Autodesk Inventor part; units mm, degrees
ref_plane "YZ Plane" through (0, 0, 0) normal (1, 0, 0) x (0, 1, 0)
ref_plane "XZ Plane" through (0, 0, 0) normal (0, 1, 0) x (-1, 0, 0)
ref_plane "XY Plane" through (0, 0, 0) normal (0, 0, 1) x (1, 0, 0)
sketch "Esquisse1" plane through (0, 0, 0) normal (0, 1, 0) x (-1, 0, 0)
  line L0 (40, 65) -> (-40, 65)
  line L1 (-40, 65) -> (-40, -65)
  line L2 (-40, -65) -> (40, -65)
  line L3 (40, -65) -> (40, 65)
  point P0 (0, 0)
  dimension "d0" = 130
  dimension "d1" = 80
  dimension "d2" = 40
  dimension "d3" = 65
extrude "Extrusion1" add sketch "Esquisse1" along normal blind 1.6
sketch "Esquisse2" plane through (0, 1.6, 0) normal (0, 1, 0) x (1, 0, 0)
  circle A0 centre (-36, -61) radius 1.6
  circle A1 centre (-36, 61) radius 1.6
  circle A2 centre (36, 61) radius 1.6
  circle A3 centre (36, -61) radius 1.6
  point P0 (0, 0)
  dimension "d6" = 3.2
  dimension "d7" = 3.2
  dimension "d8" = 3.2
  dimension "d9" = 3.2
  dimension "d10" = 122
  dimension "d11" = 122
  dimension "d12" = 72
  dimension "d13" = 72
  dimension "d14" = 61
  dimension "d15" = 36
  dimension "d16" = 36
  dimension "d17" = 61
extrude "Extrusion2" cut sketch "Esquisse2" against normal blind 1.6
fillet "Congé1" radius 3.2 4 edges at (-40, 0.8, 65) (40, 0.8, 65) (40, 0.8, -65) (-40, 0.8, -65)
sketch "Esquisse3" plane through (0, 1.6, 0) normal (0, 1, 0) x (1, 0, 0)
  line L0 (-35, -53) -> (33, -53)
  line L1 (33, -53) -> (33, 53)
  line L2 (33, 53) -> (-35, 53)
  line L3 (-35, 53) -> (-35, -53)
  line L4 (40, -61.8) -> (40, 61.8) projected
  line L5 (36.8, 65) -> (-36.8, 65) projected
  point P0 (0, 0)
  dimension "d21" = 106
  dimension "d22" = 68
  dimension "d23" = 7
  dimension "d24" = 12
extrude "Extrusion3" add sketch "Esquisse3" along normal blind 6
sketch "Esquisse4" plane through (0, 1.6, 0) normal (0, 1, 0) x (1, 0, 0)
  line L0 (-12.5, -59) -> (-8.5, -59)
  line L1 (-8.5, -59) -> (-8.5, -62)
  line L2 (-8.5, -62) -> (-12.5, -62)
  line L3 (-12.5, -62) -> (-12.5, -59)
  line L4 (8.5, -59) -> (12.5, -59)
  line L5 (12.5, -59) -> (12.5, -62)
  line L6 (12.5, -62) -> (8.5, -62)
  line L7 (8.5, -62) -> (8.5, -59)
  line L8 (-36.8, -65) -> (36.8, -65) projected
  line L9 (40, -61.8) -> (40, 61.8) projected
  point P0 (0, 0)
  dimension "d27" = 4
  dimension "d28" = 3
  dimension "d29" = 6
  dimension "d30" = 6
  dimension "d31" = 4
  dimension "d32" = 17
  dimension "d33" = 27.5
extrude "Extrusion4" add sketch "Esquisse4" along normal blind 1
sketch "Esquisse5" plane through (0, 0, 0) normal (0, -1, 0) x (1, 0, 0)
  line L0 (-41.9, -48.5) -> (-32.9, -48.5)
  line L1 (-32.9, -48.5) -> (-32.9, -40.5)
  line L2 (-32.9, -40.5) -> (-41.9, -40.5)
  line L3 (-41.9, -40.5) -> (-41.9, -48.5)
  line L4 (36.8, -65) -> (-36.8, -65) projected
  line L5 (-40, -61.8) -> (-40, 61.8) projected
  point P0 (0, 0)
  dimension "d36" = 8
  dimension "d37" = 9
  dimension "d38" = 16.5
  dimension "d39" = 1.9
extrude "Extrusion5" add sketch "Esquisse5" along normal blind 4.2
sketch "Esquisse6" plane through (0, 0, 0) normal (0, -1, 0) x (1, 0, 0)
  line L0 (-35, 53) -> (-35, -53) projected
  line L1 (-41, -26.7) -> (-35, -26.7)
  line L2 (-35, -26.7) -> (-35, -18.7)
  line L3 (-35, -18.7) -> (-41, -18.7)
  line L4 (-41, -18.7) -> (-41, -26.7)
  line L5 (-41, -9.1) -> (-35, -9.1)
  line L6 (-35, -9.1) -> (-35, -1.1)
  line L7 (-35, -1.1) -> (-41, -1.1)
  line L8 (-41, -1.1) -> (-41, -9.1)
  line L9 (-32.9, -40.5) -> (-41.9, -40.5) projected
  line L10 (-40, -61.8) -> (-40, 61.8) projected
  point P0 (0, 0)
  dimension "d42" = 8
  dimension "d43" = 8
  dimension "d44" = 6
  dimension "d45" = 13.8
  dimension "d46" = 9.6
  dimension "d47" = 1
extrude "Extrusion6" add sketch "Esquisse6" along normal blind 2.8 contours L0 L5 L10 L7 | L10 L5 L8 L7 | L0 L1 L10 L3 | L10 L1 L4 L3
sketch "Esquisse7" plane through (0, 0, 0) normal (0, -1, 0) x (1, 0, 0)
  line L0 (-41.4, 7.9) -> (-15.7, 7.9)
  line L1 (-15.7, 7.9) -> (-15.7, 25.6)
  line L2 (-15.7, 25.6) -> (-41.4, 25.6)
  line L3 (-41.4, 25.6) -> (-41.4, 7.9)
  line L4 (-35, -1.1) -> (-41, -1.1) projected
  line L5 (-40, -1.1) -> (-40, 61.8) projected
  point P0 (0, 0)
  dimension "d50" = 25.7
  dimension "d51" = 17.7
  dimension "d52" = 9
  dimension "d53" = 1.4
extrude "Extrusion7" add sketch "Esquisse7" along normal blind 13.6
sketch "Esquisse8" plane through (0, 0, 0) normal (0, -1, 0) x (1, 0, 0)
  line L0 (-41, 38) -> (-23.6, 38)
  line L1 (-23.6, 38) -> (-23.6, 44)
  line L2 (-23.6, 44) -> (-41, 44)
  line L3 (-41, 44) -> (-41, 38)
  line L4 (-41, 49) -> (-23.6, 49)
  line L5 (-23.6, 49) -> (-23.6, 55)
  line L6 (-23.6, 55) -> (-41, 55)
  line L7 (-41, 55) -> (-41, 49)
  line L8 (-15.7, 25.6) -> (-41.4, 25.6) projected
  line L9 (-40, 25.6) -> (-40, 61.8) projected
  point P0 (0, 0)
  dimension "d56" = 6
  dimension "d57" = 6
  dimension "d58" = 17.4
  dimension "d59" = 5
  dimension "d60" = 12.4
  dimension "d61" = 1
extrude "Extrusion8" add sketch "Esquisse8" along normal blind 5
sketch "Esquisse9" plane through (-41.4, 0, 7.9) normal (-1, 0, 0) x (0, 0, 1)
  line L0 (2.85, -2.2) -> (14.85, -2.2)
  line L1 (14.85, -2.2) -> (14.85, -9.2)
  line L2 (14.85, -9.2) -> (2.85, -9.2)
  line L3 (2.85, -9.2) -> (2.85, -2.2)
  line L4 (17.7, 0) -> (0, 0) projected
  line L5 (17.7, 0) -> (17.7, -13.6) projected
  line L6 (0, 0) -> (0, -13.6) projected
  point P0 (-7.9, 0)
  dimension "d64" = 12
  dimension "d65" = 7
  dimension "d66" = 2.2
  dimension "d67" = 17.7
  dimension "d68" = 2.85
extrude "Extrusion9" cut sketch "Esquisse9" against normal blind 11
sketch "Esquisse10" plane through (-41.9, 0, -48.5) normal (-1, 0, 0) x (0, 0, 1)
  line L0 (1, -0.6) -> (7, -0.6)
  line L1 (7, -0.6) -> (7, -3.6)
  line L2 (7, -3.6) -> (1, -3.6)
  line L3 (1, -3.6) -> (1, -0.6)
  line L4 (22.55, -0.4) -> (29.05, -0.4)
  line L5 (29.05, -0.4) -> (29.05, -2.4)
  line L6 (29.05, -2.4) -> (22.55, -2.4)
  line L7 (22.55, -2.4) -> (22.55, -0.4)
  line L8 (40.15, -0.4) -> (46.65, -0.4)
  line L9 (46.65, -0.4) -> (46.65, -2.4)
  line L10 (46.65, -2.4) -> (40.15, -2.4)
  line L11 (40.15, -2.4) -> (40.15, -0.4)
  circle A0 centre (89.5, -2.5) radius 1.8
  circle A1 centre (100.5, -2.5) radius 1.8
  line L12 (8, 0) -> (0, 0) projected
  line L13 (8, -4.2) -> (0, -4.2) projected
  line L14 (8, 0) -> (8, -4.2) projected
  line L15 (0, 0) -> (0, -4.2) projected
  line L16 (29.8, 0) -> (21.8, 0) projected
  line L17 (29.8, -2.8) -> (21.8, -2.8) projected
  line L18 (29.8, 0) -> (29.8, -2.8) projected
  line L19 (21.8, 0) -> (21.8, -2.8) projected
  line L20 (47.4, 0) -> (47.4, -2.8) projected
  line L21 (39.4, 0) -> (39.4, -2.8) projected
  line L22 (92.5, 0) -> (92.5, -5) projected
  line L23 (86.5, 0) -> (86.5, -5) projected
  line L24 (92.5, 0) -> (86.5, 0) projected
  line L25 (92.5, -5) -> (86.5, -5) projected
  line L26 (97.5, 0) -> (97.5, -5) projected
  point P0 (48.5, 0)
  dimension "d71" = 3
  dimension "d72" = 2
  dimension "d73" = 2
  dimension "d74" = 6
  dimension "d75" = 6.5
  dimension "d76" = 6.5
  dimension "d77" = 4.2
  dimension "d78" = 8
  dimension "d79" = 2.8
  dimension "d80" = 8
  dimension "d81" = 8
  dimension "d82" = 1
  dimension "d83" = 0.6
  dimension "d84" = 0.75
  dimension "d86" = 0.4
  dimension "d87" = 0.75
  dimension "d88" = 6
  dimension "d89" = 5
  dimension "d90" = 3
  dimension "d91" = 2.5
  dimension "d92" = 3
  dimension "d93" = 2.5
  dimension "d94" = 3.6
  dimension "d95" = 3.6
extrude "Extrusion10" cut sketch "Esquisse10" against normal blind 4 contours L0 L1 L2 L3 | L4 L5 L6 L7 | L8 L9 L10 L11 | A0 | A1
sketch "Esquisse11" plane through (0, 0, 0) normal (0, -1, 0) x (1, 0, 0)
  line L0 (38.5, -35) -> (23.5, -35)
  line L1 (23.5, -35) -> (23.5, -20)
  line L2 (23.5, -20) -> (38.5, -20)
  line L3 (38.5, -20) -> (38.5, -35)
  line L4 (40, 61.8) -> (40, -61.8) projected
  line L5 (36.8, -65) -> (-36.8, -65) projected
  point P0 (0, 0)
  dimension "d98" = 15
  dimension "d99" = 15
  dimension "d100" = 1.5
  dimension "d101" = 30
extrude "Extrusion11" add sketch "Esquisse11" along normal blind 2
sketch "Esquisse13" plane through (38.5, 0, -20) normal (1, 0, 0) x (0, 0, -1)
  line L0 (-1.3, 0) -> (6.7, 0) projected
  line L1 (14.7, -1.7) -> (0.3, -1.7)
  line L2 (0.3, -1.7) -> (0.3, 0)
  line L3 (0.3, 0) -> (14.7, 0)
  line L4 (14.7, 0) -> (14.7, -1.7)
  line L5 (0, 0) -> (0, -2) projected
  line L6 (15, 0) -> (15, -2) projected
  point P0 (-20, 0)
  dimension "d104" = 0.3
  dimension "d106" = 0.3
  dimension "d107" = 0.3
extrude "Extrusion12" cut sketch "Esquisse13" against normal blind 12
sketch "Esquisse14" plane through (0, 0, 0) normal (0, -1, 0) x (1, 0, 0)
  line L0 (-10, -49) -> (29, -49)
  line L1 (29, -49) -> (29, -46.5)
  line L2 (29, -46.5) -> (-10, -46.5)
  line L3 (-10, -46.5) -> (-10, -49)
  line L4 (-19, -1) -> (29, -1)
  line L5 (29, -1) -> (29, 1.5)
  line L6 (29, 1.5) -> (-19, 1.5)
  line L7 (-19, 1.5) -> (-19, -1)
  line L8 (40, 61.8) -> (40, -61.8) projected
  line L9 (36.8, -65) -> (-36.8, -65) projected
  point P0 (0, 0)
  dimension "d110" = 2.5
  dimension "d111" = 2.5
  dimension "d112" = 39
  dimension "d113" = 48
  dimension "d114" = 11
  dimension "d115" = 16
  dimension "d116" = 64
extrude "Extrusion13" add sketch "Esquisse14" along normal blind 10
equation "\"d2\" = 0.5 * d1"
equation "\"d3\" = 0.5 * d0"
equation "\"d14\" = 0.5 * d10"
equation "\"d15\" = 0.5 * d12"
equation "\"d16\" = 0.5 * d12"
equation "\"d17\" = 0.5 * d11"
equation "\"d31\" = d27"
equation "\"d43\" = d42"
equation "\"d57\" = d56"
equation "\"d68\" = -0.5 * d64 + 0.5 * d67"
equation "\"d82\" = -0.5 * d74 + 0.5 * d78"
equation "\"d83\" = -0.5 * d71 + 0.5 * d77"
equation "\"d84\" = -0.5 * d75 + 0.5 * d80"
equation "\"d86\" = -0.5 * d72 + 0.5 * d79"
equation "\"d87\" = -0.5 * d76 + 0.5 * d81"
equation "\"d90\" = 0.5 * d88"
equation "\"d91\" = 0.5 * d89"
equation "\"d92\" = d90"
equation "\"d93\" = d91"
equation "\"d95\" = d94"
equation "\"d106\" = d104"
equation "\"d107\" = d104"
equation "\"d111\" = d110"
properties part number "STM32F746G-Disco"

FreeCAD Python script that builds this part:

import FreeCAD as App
import Part
import Sketcher


def edges_at(feature, points):
    """Names of the edges that pass closest to the given points."""
    edges = feature.Shape.Edges
    near = lambda p: min(range(len(edges)), key=lambda i: edges[i].distToShape(Part.Vertex(*p))[0])
    return sorted({f"Edge{near(p) + 1}" for p in points})


def add_polygon(sketch, points):
    """Adds a closed chain of lines whose ends are joined by coincident constraints."""
    first, n = sketch.GeometryCount, len(points)
    for a, b in zip(points, points[1:] + points[:1]):
        sketch.addGeometry(Part.LineSegment(App.Vector(*a, 0), App.Vector(*b, 0)), False)
    for i in range(n):
        sketch.addConstraint(Sketcher.Constraint("Coincident", first + i, 2, first + (i + 1) % n, 1))

doc = App.newDocument("Part")
body = doc.addObject("PartDesign::Body", "Body")

# Sketch on XZ plane
sketch1 = body.newObject("Sketcher::SketchObject", "Sketch")
sketch1.AttachmentSupport = (doc.getObject("XZ_Plane"), [""])
sketch1.MapMode = "FlatFace"
add_polygon(sketch1, [(-40, -65), (-40, 65), (40, 65), (40, -65)])  # lines 0-3
sketch1.addConstraint([
    Sketcher.Constraint("Vertical", 0),
    Sketcher.Constraint("Horizontal", 1),
    Sketcher.Constraint("Vertical", 2),
    Sketcher.Constraint("Horizontal", 3),
    Sketcher.Constraint("Symmetric", 0, 2, 2, 2, -1, 1),
    Sketcher.Constraint("DistanceX", 1, 1, 1, 2, 80.0),
    Sketcher.Constraint("DistanceY", 0, 1, 0, 2, 130.0),
])
pad1 = body.newObject("PartDesign::Pad", "Pad")
pad1.Profile = sketch1
pad1.Length = 1.6
pad1.Reversed = True

# Sketch on XZ plane
sketch2 = body.newObject("Sketcher::SketchObject", "Sketch001")
sketch2.AttachmentSupport = (doc.getObject("XZ_Plane"), [""])
sketch2.MapMode = "FlatFace"
sketch2.AttachmentOffset = App.Placement(App.Vector(0, 0, -1.6), App.Rotation())
sketch2.addGeometry([
    Part.Circle(App.Vector(-36, 61, 0), App.Vector(0, 0, 1), 1.6),
    Part.Circle(App.Vector(-36, -61, 0), App.Vector(0, 0, 1), 1.6),
    Part.Circle(App.Vector(36, -61, 0), App.Vector(0, 0, 1), 1.6),
    Part.Circle(App.Vector(36, 61, 0), App.Vector(0, 0, 1), 1.6),
], False)
sketch2.addConstraint([
    Sketcher.Constraint("Equal", 0, 1),
    Sketcher.Constraint("Equal", 1, 2),
    Sketcher.Constraint("Equal", 2, 3),
    Sketcher.Constraint("Symmetric", 0, 3, 2, 3, -1, 1),
    Sketcher.Constraint("Symmetric", 1, 3, 3, 3, -1, 1),
    Sketcher.Constraint("Symmetric", 1, 3, 2, 3, -2),
    Sketcher.Constraint("Diameter", 0, 3.2),
    Sketcher.Constraint("DistanceX", 0, 3, -1, 1, 36.0),
    Sketcher.Constraint("DistanceY", -1, 1, 0, 3, 61.0),
])
pocket1 = body.newObject("PartDesign::Pocket", "Pocket")
pocket1.Profile = sketch2
pocket1.Length = 1.6
pocket1.Reversed = True
doc.recompute()

fillet = body.newObject("PartDesign::Fillet", "Fillet")
fillet.Base = (pocket1, edges_at(pocket1, [
    (-40, 0.8, 65),
    (40, 0.8, 65),
    (40, 0.8, -65),
    (-40, 0.8, -65),
]))
fillet.Radius = 3.2

# Sketch on XZ plane
sketch3 = body.newObject("Sketcher::SketchObject", "Sketch002")
sketch3.AttachmentSupport = (doc.getObject("XZ_Plane"), [""])
sketch3.MapMode = "FlatFace"
sketch3.AttachmentOffset = App.Placement(App.Vector(0, 0, -1.6), App.Rotation())
add_polygon(sketch3, [(-35, -53), (-35, 53), (33, 53), (33, -53)])  # lines 0-3
sketch3.addConstraint([
    Sketcher.Constraint("Vertical", 0),
    Sketcher.Constraint("Horizontal", 1),
    Sketcher.Constraint("Vertical", 2),
    Sketcher.Constraint("Horizontal", 3),
    Sketcher.Constraint("DistanceX", 1, 1, 1, 2, 68.0),
    Sketcher.Constraint("DistanceY", 0, 1, 0, 2, 106.0),
    Sketcher.Constraint("DistanceX", 0, 2, -1, 1, 35.0),
    Sketcher.Constraint("DistanceY", -1, 1, 0, 2, 53.0),
])
pad2 = body.newObject("PartDesign::Pad", "Pad001")
pad2.Profile = sketch3
pad2.Length = 6
pad2.Reversed = True

# Sketch on XZ plane
sketch4 = body.newObject("Sketcher::SketchObject", "Sketch003")
sketch4.AttachmentSupport = (doc.getObject("XZ_Plane"), [""])
sketch4.MapMode = "FlatFace"
sketch4.AttachmentOffset = App.Placement(App.Vector(0, 0, -1.6), App.Rotation())
add_polygon(sketch4, [(-8.5, 59), (-12.5, 59), (-12.5, 62), (-8.5, 62)])  # lines 0-3
add_polygon(sketch4, [(12.5, 59), (8.5, 59), (8.5, 62), (12.5, 62)])  # lines 4-7
sketch4.addConstraint([
    Sketcher.Constraint("Horizontal", 0),
    Sketcher.Constraint("Vertical", 1),
    Sketcher.Constraint("Horizontal", 2),
    Sketcher.Constraint("Vertical", 3),
    Sketcher.Constraint("Horizontal", 4),
    Sketcher.Constraint("Vertical", 5),
    Sketcher.Constraint("Horizontal", 6),
    Sketcher.Constraint("Vertical", 7),
    Sketcher.Constraint("Symmetric", 3, 2, 4, 2, -2),
    Sketcher.Constraint("Symmetric", 1, 2, 6, 2, -2),
    Sketcher.Constraint("DistanceX", 0, 2, 0, 1, 4.0),
    Sketcher.Constraint("DistanceY", 1, 1, 1, 2, 3.0),
    Sketcher.Constraint("DistanceX", 3, 2, 4, 2, 17.0),
    Sketcher.Constraint("DistanceY", -1, 1, 0, 2, 59.0),
])
pad3 = body.newObject("PartDesign::Pad", "Pad002")
pad3.Profile = sketch4
pad3.Length = 1
pad3.Reversed = True

# Sketch on XZ plane
sketch5 = body.newObject("Sketcher::SketchObject", "Sketch004")
sketch5.AttachmentSupport = (doc.getObject("XZ_Plane"), [""])
sketch5.MapMode = "FlatFace"
add_polygon(sketch5, [(-42, -40), (-42, -48), (-33, -48), (-33, -40)])  # lines 0-3
sketch5.addConstraint([
    Sketcher.Constraint("Vertical", 0),
    Sketcher.Constraint("Horizontal", 1),
    Sketcher.Constraint("Vertical", 2),
    Sketcher.Constraint("Horizontal", 3),
    Sketcher.Constraint("DistanceX", 1, 1, 1, 2, 9.0),
    Sketcher.Constraint("DistanceY", 0, 2, 0, 1, 8.0),
    Sketcher.Constraint("DistanceX", 0, 2, -1, 1, 41.9),
    Sketcher.Constraint("DistanceY", 0, 2, -1, 1, 48.5),
])
pad4 = body.newObject("PartDesign::Pad", "Pad003")
pad4.Profile = sketch5
pad4.Length = 4.2

# Sketch on XZ plane
sketch6 = body.newObject("Sketcher::SketchObject", "Sketch005")
sketch6.AttachmentSupport = (doc.getObject("XZ_Plane"), [""])
sketch6.MapMode = "FlatFace"
add_polygon(sketch6, [(-35, -9), (-35, -1), (-41, -1), (-41, -9)])  # lines 0-3
add_polygon(sketch6, [(-35, -27), (-35, -19), (-41, -19), (-41, -27)])  # lines 4-7
sketch6.addConstraint([
    Sketcher.Constraint("Vertical", 0),
    Sketcher.Constraint("Horizontal", 1),
    Sketcher.Constraint("Vertical", 2),
    Sketcher.Constraint("Horizontal", 3),
    Sketcher.Constraint("Vertical", 4),
    Sketcher.Constraint("Horizontal", 5),
    Sketcher.Constraint("Vertical", 6),
    Sketcher.Constraint("Horizontal", 7),
    Sketcher.Constraint("Vertical", 3, 2, 4, 2),
    Sketcher.Constraint("Vertical", 2, 2, 5, 2),
    Sketcher.Constraint("Equal", 2, 4),
    Sketcher.Constraint("DistanceX", 1, 2, 1, 1, 6.0),
    Sketcher.Constraint("DistanceY", 0, 1, 0, 2, 8.0),
    Sketcher.Constraint("DistanceY", 4, 2, 3, 2, 9.6),
    Sketcher.Constraint("DistanceX", 0, 2, -1, 1, 35.0),
    Sketcher.Constraint("DistanceY", 0, 2, -1, 1, 1.1),
])
pad5 = body.newObject("PartDesign::Pad", "Pad004")
pad5.Profile = sketch6
pad5.Length = 2.8

# Sketch on XZ plane
sketch7 = body.newObject("Sketcher::SketchObject", "Sketch006")
sketch7.AttachmentSupport = (doc.getObject("XZ_Plane"), [""])
sketch7.MapMode = "FlatFace"
add_polygon(sketch7, [(-41, 26), (-41, 8), (-16, 8), (-16, 26)])  # lines 0-3
sketch7.addConstraint([
    Sketcher.Constraint("Vertical", 0),
    Sketcher.Constraint("Horizontal", 1),
    Sketcher.Constraint("Vertical", 2),
    Sketcher.Constraint("Horizontal", 3),
    Sketcher.Constraint("DistanceX", 1, 1, 1, 2, 25.7),
    Sketcher.Constraint("DistanceY", 0, 2, 0, 1, 17.7),
    Sketcher.Constraint("DistanceX", 0, 2, -1, 1, 41.4),
    Sketcher.Constraint("DistanceY", -1, 1, 0, 2, 7.9),
])
pad6 = body.newObject("PartDesign::Pad", "Pad005")
pad6.Profile = sketch7
pad6.Length = 13.6

# Sketch on XZ plane
sketch8 = body.newObject("Sketcher::SketchObject", "Sketch007")
sketch8.AttachmentSupport = (doc.getObject("XZ_Plane"), [""])
sketch8.MapMode = "FlatFace"
add_polygon(sketch8, [(-41, 44), (-41, 38), (-24, 38), (-24, 44)])  # lines 0-3
add_polygon(sketch8, [(-41, 49), (-24, 49), (-24, 55), (-41, 55)])  # lines 4-7
sketch8.addConstraint([
    Sketcher.Constraint("Vertical", 0),
    Sketcher.Constraint("Horizontal", 1),
    Sketcher.Constraint("Vertical", 2),
    Sketcher.Constraint("Horizontal", 3),
    Sketcher.Constraint("Horizontal", 4),
    Sketcher.Constraint("Vertical", 5),
    Sketcher.Constraint("Horizontal", 6),
    Sketcher.Constraint("Vertical", 7),
    Sketcher.Constraint("Vertical", 2, 2, 4, 2),
    Sketcher.Constraint("Vertical", 3, 2, 6, 2),
    Sketcher.Constraint("Equal", 2, 5),
    Sketcher.Constraint("DistanceY", 0, 2, 0, 1, 6.0),
    Sketcher.Constraint("DistanceX", 1, 1, 1, 2, 17.4),
    Sketcher.Constraint("DistanceY", 2, 2, 4, 2, 5.0),
    Sketcher.Constraint("DistanceX", 0, 2, -1, 1, 41.0),
    Sketcher.Constraint("DistanceY", -1, 1, 0, 2, 38.0),
])
pad7 = body.newObject("PartDesign::Pad", "Pad006")
pad7.Profile = sketch8
pad7.Length = 5

# Sketch on YZ plane
sketch9 = body.newObject("Sketcher::SketchObject", "Sketch008")
sketch9.AttachmentSupport = (doc.getObject("YZ_Plane"), [""])
sketch9.MapMode = "FlatFace"
sketch9.AttachmentOffset = App.Placement(App.Vector(0, 0, -41.4), App.Rotation())
add_polygon(sketch9, [(-2, 23), (-2, 11), (-9, 11), (-9, 23)])  # lines 0-3
sketch9.addConstraint([
    Sketcher.Constraint("Vertical", 0),
    Sketcher.Constraint("Horizontal", 1),
    Sketcher.Constraint("Vertical", 2),
    Sketcher.Constraint("Horizontal", 3),
    Sketcher.Constraint("DistanceX", 1, 2, 1, 1, 7.0),
    Sketcher.Constraint("DistanceY", 0, 2, 0, 1, 12.0),
    Sketcher.Constraint("DistanceX", 0, 2, -1, 1, 2.2),
    Sketcher.Constraint("DistanceY", -1, 1, 0, 2, 10.75),
])
pocket2 = body.newObject("PartDesign::Pocket", "Pocket001")
pocket2.Profile = sketch9
pocket2.Length = 11
pocket2.Reversed = True

# Sketch on YZ plane
sketch10 = body.newObject("Sketcher::SketchObject", "Sketch009")
sketch10.AttachmentSupport = (doc.getObject("YZ_Plane"), [""])
sketch10.MapMode = "FlatFace"
sketch10.AttachmentOffset = App.Placement(App.Vector(0, 0, -41.9), App.Rotation())
add_polygon(sketch10, [(-0.6, -41.5), (-0.6, -47.5), (-3.6, -47.5), (-3.6, -41.5)])  # lines 0-3
add_polygon(sketch10, [(-0.4, -19.4), (-0.4, -25.9), (-2.4, -25.9), (-2.4, -19.4)])  # lines 4-7
add_polygon(sketch10, [(-0.4, -1.9), (-0.4, -8.3), (-2.4, -8.3), (-2.4, -1.9)])  # lines 8-11
sketch10.addGeometry(Part.Circle(App.Vector(-2.5, 41, 0), App.Vector(0, 0, 1), 1.8), False)  # 12
sketch10.addGeometry(Part.Circle(App.Vector(-2.5, 52, 0), App.Vector(0, 0, 1), 1.8), False)  # 13
sketch10.addConstraint([
    Sketcher.Constraint("Vertical", 0),
    Sketcher.Constraint("Horizontal", 1),
    Sketcher.Constraint("Vertical", 2),
    Sketcher.Constraint("Horizontal", 3),
    Sketcher.Constraint("Vertical", 4),
    Sketcher.Constraint("Horizontal", 5),
    Sketcher.Constraint("Vertical", 6),
    Sketcher.Constraint("Horizontal", 7),
    Sketcher.Constraint("Vertical", 8),
    Sketcher.Constraint("Horizontal", 9),
    Sketcher.Constraint("Vertical", 10),
    Sketcher.Constraint("Horizontal", 11),
    Sketcher.Constraint("Equal", 12, 13),
    Sketcher.Constraint("Vertical", 12, 3, 13, 3),
    Sketcher.Constraint("Vertical", 7, 2, 8, 2),
    Sketcher.Constraint("Vertical", 6, 2, 9, 2),
    Sketcher.Constraint("Equal", 6, 8),
    Sketcher.Constraint("Diameter", 12, 3.6),
    Sketcher.Constraint("DistanceX", 1, 2, 1, 1, 3.0),
    Sketcher.Constraint("DistanceX", 5, 2, 5, 1, 2.0),
    Sketcher.Constraint("DistanceY", 0, 2, 0, 1, 6.0),
    Sketcher.Constraint("DistanceY", 4, 2, 4, 1, 6.5),
    Sketcher.Constraint("DistanceX", 12, 3, -1, 1, 2.5),
    Sketcher.Constraint("DistanceX", 0, 2, -1, 1, 0.6),
    Sketcher.Constraint("DistanceX", 4, 2, -1, 1, 0.4),
    Sketcher.Constraint("DistanceY", -1, 1, 12, 3, 41.0),
    Sketcher.Constraint("DistanceY", -1, 1, 13, 3, 52.0),
    Sketcher.Constraint("DistanceY", 0, 2, -1, 1, 47.5),
    Sketcher.Constraint("DistanceY", 7, 2, 8, 2, 11.1),
    Sketcher.Constraint("DistanceY", 4, 2, -1, 1, 25.95),
])
pocket3 = body.newObject("PartDesign::Pocket", "Pocket002")
pocket3.Profile = sketch10
pocket3.Length = 4
pocket3.Reversed = True

# Sketch on XZ plane
sketch11 = body.newObject("Sketcher::SketchObject", "Sketch010")
sketch11.AttachmentSupport = (doc.getObject("XZ_Plane"), [""])
sketch11.MapMode = "FlatFace"
add_polygon(sketch11, [(24, -35), (38, -35), (38, -20), (24, -20)])  # lines 0-3
sketch11.addConstraint([
    Sketcher.Constraint("Horizontal", 0),
    Sketcher.Constraint("Vertical", 1),
    Sketcher.Constraint("Horizontal", 2),
    Sketcher.Constraint("Vertical", 3),
    Sketcher.Constraint("Equal", 2, 1),
    Sketcher.Constraint("DistanceX", 0, 1, 0, 2, 15.0),
    Sketcher.Constraint("DistanceY", 0, 2, -1, 1, 35.0),
    Sketcher.Constraint("DistanceX", -1, 1, 0, 2, 38.5),
])
pad8 = body.newObject("PartDesign::Pad", "Pad007")
pad8.Profile = sketch11
pad8.Length = 2

# Sketch on YZ plane
sketch12 = body.newObject("Sketcher::SketchObject", "Sketch011")
sketch12.AttachmentSupport = (doc.getObject("YZ_Plane"), [""])
sketch12.MapMode = "FlatFace"
sketch12.AttachmentOffset = App.Placement(App.Vector(0, 0, 38.5), App.Rotation())
add_polygon(sketch12, [(0, -34.7), (0, -20.3), (-1.7, -20.3), (-1.7, -34.7)])  # lines 0-3
sketch12.addConstraint([
    Sketcher.Constraint("Vertical", 0),
    Sketcher.Constraint("Horizontal", 1),
    Sketcher.Constraint("Vertical", 2),
    Sketcher.Constraint("Horizontal", 3),
    Sketcher.Constraint("PointOnObject", 0, 2, -2),
    Sketcher.Constraint("DistanceX", 1, 2, 1, 1, 1.7),
    Sketcher.Constraint("DistanceY", 0, 1, 0, 2, 14.4),
    Sketcher.Constraint("DistanceY", 0, 2, -1, 1, 20.3),
])
pocket4 = body.newObject("PartDesign::Pocket", "Pocket003")
pocket4.Profile = sketch12
pocket4.Length = 12

# Sketch on XZ plane
sketch13 = body.newObject("Sketcher::SketchObject", "Sketch012")
sketch13.AttachmentSupport = (doc.getObject("XZ_Plane"), [""])
sketch13.MapMode = "FlatFace"
add_polygon(sketch13, [(-10, -46.5), (-10, -49), (29, -49), (29, -46.5)])  # lines 0-3
add_polygon(sketch13, [(-19, 1.5), (-19, -1), (29, -1), (29, 1.5)])  # lines 4-7
sketch13.addConstraint([
    Sketcher.Constraint("Vertical", 0),
    Sketcher.Constraint("Horizontal", 1),
    Sketcher.Constraint("Vertical", 2),
    Sketcher.Constraint("Horizontal", 3),
    Sketcher.Constraint("Vertical", 4),
    Sketcher.Constraint("Horizontal", 5),
    Sketcher.Constraint("Vertical", 6),
    Sketcher.Constraint("Horizontal", 7),
    Sketcher.Constraint("Vertical", 2, 2, 5, 2),
    Sketcher.Constraint("Equal", 2, 4),
    Sketcher.Constraint("DistanceX", 1, 1, 1, 2, 39.0),
    Sketcher.Constraint("DistanceX", 5, 1, 5, 2, 48.0),
    Sketcher.Constraint("DistanceY", 0, 2, 0, 1, 2.5),
    Sketcher.Constraint("DistanceY", 0, 2, 4, 2, 48.0),
    Sketcher.Constraint("DistanceX", 0, 2, -1, 1, 10.0),
    Sketcher.Constraint("DistanceY", 0, 2, -1, 1, 49.0),
])
pad9 = body.newObject("PartDesign::Pad", "Pad008")
pad9.Profile = sketch13
pad9.Length = 10

doc.recompute()
